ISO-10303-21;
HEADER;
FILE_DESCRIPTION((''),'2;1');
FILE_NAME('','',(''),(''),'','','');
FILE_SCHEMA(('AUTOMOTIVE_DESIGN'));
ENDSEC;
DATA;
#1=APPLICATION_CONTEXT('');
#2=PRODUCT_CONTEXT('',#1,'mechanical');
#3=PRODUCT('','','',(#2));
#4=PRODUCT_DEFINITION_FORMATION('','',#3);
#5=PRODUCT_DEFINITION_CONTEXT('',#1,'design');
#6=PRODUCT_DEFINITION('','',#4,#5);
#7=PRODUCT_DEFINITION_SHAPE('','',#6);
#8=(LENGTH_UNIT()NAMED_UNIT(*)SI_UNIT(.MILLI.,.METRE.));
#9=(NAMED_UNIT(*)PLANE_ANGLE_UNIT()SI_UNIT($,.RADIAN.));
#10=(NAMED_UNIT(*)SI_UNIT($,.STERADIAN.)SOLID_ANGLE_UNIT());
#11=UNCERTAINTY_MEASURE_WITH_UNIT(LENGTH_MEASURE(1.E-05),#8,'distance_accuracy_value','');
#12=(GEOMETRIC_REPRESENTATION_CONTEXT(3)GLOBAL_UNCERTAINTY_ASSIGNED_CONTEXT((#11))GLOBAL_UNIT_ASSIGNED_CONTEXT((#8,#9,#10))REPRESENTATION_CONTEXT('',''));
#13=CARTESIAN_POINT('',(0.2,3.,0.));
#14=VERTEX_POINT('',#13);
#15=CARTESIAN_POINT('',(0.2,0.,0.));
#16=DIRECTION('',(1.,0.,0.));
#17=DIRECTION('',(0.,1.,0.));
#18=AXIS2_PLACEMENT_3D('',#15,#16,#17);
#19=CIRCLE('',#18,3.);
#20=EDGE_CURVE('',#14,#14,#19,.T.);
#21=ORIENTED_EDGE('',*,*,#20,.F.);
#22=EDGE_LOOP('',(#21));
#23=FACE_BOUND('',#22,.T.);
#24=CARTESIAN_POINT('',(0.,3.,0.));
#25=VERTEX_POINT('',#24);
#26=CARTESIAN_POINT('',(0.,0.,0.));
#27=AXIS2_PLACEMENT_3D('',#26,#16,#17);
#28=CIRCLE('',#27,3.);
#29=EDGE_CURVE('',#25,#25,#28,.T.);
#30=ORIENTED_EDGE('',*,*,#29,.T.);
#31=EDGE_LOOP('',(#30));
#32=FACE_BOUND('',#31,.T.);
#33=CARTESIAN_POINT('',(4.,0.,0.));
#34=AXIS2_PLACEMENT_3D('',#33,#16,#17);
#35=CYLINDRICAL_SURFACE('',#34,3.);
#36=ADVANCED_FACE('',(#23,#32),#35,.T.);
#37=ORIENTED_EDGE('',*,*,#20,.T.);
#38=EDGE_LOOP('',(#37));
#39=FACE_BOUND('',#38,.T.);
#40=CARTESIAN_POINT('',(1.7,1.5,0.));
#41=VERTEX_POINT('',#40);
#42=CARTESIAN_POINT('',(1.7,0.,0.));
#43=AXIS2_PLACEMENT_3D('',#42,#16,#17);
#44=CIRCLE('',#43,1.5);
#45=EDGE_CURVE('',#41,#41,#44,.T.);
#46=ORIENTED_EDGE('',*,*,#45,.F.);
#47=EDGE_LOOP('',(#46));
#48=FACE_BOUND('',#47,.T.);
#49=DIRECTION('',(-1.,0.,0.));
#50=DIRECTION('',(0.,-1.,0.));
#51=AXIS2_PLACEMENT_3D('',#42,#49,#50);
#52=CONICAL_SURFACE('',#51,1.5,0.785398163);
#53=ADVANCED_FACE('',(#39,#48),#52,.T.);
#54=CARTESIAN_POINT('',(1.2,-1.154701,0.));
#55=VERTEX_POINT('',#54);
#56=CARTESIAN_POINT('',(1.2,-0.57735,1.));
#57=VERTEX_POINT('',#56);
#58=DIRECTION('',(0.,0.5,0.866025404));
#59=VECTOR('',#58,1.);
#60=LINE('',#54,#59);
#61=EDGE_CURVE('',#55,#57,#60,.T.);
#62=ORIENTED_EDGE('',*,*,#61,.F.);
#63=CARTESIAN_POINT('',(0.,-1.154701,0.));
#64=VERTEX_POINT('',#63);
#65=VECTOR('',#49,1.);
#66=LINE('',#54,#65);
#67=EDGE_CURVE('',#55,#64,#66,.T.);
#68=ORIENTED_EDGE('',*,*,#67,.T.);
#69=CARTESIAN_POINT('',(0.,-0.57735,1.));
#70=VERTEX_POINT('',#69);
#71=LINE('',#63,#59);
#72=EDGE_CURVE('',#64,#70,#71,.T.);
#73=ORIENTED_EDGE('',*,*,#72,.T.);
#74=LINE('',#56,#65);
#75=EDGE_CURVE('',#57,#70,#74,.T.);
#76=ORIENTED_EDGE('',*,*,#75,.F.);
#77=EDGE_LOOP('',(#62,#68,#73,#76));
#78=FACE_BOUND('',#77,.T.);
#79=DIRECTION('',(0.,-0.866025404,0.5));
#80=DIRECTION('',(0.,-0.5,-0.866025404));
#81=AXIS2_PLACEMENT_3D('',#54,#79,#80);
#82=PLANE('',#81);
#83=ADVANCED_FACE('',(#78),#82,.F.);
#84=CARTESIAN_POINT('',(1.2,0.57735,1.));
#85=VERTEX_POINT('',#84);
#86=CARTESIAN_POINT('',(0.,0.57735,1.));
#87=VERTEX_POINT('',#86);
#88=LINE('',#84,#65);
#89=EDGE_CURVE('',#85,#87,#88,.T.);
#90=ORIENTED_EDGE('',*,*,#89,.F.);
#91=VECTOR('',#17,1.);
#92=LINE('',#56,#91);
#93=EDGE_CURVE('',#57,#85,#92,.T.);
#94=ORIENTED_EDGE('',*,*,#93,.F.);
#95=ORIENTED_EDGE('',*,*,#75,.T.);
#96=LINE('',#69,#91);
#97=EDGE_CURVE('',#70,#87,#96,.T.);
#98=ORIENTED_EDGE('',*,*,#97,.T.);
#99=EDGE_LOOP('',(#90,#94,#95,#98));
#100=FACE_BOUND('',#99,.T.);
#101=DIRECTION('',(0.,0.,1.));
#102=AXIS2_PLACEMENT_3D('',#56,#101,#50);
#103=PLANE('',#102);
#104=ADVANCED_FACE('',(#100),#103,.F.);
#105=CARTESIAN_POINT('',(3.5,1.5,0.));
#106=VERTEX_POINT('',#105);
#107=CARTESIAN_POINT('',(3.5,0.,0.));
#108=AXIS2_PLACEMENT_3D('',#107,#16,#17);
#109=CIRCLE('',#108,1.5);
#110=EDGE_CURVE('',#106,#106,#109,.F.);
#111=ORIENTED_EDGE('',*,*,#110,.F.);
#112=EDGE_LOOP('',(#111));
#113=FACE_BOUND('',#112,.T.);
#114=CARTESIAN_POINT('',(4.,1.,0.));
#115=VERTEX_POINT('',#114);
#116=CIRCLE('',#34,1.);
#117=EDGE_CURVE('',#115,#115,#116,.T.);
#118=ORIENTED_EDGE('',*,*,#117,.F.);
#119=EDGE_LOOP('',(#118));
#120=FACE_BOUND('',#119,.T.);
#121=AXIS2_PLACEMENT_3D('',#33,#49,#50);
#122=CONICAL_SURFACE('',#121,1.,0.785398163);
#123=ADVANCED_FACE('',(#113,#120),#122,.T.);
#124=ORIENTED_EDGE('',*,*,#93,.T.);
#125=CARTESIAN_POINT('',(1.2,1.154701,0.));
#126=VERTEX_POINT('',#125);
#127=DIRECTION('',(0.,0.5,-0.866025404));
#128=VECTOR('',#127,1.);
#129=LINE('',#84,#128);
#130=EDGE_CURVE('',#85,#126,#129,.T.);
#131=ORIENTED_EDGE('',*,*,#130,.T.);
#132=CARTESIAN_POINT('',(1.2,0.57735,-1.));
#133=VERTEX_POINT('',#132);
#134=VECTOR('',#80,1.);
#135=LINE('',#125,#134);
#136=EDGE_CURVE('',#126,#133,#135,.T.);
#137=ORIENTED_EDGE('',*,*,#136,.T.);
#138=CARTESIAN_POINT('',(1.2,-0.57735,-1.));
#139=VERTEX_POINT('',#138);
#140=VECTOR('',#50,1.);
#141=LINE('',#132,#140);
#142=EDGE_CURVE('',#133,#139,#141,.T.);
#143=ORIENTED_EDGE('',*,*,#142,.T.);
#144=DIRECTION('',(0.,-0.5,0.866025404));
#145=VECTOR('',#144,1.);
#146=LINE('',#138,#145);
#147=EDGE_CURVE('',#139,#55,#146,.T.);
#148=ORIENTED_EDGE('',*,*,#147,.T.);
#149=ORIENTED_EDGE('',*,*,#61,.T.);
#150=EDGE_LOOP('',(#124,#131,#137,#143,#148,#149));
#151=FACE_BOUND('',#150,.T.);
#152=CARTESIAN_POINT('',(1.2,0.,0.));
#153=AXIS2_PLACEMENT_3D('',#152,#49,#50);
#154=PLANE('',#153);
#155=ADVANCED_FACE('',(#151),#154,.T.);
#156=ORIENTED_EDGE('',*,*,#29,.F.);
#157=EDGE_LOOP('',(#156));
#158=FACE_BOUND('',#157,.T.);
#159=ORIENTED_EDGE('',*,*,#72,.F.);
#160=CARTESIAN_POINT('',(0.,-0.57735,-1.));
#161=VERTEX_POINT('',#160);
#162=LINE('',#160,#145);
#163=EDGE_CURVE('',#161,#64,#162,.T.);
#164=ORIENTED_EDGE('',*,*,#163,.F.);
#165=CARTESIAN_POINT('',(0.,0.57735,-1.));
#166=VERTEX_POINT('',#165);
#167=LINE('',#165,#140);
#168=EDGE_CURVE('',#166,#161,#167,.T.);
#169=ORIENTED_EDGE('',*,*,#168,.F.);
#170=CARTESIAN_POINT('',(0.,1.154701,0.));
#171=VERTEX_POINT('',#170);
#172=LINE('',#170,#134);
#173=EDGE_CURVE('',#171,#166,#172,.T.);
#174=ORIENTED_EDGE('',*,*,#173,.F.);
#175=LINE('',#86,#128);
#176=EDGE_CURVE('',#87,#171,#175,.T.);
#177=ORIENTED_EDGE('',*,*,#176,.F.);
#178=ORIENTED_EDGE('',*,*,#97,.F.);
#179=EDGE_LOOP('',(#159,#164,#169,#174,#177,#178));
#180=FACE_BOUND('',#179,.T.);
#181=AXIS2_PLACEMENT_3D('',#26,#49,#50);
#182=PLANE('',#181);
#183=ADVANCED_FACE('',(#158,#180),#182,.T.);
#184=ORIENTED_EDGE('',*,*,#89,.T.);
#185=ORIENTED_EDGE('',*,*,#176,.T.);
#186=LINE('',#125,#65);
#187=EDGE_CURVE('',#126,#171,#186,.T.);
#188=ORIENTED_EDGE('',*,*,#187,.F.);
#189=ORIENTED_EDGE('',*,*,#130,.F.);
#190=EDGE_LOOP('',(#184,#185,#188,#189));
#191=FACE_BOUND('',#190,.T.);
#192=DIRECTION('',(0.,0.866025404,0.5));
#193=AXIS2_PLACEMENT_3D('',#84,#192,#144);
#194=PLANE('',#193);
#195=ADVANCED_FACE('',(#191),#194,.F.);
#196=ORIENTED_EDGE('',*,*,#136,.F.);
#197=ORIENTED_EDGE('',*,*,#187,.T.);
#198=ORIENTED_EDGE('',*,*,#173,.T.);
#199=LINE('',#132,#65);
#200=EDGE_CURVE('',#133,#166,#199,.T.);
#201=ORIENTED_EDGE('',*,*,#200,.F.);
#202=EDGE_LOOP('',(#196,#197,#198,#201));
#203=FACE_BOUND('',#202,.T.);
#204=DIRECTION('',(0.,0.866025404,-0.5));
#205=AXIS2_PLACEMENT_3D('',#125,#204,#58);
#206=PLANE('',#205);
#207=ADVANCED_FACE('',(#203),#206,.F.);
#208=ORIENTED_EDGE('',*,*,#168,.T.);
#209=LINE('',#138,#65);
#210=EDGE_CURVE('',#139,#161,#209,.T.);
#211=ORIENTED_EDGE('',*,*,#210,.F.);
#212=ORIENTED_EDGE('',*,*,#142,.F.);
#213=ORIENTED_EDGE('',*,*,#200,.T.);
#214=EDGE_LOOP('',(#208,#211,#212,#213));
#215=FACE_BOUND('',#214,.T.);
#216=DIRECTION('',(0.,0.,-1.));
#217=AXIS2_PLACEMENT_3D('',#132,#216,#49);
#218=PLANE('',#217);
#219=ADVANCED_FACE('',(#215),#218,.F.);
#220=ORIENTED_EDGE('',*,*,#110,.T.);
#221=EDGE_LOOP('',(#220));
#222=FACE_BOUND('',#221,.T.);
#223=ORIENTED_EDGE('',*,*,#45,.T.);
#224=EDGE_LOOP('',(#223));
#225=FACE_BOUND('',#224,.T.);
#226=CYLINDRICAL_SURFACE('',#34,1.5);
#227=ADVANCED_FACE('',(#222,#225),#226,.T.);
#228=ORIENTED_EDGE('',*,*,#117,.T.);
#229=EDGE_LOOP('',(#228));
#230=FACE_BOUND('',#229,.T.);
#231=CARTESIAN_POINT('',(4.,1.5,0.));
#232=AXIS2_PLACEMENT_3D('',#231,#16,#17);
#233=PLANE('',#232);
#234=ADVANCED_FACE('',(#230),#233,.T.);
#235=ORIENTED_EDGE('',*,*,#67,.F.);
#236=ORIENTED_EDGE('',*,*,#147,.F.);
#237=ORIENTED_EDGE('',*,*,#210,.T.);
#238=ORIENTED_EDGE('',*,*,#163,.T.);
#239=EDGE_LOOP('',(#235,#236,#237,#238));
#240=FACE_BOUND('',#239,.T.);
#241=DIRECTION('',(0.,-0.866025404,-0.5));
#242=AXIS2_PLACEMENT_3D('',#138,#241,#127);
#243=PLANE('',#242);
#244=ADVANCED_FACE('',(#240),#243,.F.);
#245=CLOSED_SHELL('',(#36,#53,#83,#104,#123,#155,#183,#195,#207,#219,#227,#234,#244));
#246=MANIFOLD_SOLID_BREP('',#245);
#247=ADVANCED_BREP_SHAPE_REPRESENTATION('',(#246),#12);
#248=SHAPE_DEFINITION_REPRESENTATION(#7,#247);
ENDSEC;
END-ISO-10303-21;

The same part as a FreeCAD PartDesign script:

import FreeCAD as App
import Part
import Sketcher
from FreeCAD import Vector
Q = App.Units.Quantity


def edges_at(feature, points):
    """Names of the edges that pass closest to the given points."""
    edges = feature.Shape.Edges
    near = lambda p: min(range(len(edges)), key=lambda i: edges[i].distToShape(Part.Vertex(*p))[0])
    return sorted({f"Edge{near(p) + 1}" for p in points})


def add_polygon(sketch, points):
    """Adds a closed chain of lines whose ends are joined by coincident constraints."""
    first, n = sketch.GeometryCount, len(points)
    for a, b in zip(points, points[1:] + points[:1]):
        sketch.addGeometry(Part.LineSegment(App.Vector(*a, 0), App.Vector(*b, 0)), False)
    for i in range(n):
        sketch.addConstraint(Sketcher.Constraint("Coincident", first + i, 2, first + (i + 1) % n, 1))

doc = App.newDocument("Part")
params = doc.addObject("Spreadsheet::Sheet", "Params")
for row, (alias, value) in enumerate([
    ("sketch1_width", "4 mm"),
    ("sketch1_height", "3 mm"),
    ("sketch1_width2", "2.3 mm"),
    ("sketch1_width3", "0.2 mm"),
    ("revolution_angle", "360 deg"),
    ("chamfer_size", "0.5 mm"),
    ("pocket1_length", "1.2 mm"),
], start=1):
    params.set(f"A{row}", alias)
    params.set(f"B{row}", "=" + value)
    params.setAlias(f"B{row}", alias)

body = doc.addObject("PartDesign::Body", "Body")

sketch1 = doc.addObject("Sketcher::SketchObject", "Sketch")
body.addObject(sketch1)
sketch1.AttachmentSupport = (doc.XY_Plane, [""])
sketch1.MapMode = "FlatFace"
add_polygon(sketch1, [(0, 3), (0, 0), (4, 0), (4, 1.5), (1.7, 1.5), (0.2, 3)])
sketch1.addConstraint(Sketcher.Constraint("Vertical", 0))
sketch1.addConstraint(Sketcher.Constraint("Horizontal", 1))
sketch1.addConstraint(Sketcher.Constraint("Vertical", 2))
sketch1.addConstraint(Sketcher.Constraint("Horizontal", 3))
sketch1.addConstraint(Sketcher.Constraint("Horizontal", 5))
sketch1.addConstraint(Sketcher.Constraint("Coincident", 0, 2, -1, 1))
sketch1.addConstraint(Sketcher.Constraint("DistanceX", 1, 1, 1, 2, 4.0))
sketch1.addConstraint(Sketcher.Constraint("DistanceY", 0, 2, 0, 1, 3.0))
sketch1.addConstraint(Sketcher.Constraint("Angle", 4, Q("135 deg")))
sketch1.addConstraint(Sketcher.Constraint("DistanceX", 3, 2, 3, 1, 2.3))
sketch1.addConstraint(Sketcher.Constraint("DistanceX", 5, 2, 5, 1, 0.2))
sketch1.setExpression("Constraints[12]", "Params.sketch1_width")
sketch1.setExpression("Constraints[13]", "Params.sketch1_height")
sketch1.setExpression("Constraints[15]", "Params.sketch1_width2")
sketch1.setExpression("Constraints[16]", "Params.sketch1_width3")
revolution = doc.addObject("PartDesign::Revolution", "Revolution")
body.addObject(revolution)
revolution.Profile = sketch1
revolution.ReferenceAxis = (sketch1, ["H_Axis"])
revolution.setExpression("Angle", "Params.revolution_angle")
doc.recompute()

chamfer = doc.addObject("PartDesign::Chamfer", "Chamfer")
body.addObject(chamfer)
chamfer.Base = (revolution, edges_at(revolution, [(4, -1.5, 0)]))
chamfer.setExpression("Size", "Params.chamfer_size")

sketch2 = doc.addObject("Sketcher::SketchObject", "Sketch001")
body.addObject(sketch2)
sketch2.AttachmentSupport = (doc.YZ_Plane, [""])
sketch2.MapMode = "FlatFace"
add_polygon(sketch2, [(1.2, 0), (0.6, -1), (-0.6, -1), (-1.2, 0), (-0.6, 1), (0.6, 1)])
sketch2.addConstraint(Sketcher.Constraint("Horizontal", 1))
sketch2.addConstraint(Sketcher.Constraint("Horizontal", 4))
sketch2.addConstraint(Sketcher.Constraint("Symmetric", 0, 2, 3, 2, -1, 1))
sketch2.addConstraint(Sketcher.Constraint("Symmetric", 2, 2, 5, 2, -1, 1))
sketch2.addConstraint(Sketcher.Constraint("PointOnObject", 2, 2, -1))
sketch2.addConstraint(Sketcher.Constraint("Parallel", 2, 5))
sketch2.addConstraint(Sketcher.Constraint("Vertical", 1, 2, 3, 2))
sketch2.addConstraint(Sketcher.Constraint("Angle", 0, Q("-120 deg")))
sketch2.addConstraint(Sketcher.Constraint("DistanceY", 0, 2, -1, 1, 1.0))
sketch2.addConstraint(Sketcher.Constraint("DistanceX", 1, 2, 1, 1, 1.154701))
pocket1 = doc.addObject("PartDesign::Pocket", "Pocket")
body.addObject(pocket1)
pocket1.Profile = sketch2
pocket1.setExpression("Length", "Params.pocket1_length")
pocket1.Reversed = True

doc.recompute()
